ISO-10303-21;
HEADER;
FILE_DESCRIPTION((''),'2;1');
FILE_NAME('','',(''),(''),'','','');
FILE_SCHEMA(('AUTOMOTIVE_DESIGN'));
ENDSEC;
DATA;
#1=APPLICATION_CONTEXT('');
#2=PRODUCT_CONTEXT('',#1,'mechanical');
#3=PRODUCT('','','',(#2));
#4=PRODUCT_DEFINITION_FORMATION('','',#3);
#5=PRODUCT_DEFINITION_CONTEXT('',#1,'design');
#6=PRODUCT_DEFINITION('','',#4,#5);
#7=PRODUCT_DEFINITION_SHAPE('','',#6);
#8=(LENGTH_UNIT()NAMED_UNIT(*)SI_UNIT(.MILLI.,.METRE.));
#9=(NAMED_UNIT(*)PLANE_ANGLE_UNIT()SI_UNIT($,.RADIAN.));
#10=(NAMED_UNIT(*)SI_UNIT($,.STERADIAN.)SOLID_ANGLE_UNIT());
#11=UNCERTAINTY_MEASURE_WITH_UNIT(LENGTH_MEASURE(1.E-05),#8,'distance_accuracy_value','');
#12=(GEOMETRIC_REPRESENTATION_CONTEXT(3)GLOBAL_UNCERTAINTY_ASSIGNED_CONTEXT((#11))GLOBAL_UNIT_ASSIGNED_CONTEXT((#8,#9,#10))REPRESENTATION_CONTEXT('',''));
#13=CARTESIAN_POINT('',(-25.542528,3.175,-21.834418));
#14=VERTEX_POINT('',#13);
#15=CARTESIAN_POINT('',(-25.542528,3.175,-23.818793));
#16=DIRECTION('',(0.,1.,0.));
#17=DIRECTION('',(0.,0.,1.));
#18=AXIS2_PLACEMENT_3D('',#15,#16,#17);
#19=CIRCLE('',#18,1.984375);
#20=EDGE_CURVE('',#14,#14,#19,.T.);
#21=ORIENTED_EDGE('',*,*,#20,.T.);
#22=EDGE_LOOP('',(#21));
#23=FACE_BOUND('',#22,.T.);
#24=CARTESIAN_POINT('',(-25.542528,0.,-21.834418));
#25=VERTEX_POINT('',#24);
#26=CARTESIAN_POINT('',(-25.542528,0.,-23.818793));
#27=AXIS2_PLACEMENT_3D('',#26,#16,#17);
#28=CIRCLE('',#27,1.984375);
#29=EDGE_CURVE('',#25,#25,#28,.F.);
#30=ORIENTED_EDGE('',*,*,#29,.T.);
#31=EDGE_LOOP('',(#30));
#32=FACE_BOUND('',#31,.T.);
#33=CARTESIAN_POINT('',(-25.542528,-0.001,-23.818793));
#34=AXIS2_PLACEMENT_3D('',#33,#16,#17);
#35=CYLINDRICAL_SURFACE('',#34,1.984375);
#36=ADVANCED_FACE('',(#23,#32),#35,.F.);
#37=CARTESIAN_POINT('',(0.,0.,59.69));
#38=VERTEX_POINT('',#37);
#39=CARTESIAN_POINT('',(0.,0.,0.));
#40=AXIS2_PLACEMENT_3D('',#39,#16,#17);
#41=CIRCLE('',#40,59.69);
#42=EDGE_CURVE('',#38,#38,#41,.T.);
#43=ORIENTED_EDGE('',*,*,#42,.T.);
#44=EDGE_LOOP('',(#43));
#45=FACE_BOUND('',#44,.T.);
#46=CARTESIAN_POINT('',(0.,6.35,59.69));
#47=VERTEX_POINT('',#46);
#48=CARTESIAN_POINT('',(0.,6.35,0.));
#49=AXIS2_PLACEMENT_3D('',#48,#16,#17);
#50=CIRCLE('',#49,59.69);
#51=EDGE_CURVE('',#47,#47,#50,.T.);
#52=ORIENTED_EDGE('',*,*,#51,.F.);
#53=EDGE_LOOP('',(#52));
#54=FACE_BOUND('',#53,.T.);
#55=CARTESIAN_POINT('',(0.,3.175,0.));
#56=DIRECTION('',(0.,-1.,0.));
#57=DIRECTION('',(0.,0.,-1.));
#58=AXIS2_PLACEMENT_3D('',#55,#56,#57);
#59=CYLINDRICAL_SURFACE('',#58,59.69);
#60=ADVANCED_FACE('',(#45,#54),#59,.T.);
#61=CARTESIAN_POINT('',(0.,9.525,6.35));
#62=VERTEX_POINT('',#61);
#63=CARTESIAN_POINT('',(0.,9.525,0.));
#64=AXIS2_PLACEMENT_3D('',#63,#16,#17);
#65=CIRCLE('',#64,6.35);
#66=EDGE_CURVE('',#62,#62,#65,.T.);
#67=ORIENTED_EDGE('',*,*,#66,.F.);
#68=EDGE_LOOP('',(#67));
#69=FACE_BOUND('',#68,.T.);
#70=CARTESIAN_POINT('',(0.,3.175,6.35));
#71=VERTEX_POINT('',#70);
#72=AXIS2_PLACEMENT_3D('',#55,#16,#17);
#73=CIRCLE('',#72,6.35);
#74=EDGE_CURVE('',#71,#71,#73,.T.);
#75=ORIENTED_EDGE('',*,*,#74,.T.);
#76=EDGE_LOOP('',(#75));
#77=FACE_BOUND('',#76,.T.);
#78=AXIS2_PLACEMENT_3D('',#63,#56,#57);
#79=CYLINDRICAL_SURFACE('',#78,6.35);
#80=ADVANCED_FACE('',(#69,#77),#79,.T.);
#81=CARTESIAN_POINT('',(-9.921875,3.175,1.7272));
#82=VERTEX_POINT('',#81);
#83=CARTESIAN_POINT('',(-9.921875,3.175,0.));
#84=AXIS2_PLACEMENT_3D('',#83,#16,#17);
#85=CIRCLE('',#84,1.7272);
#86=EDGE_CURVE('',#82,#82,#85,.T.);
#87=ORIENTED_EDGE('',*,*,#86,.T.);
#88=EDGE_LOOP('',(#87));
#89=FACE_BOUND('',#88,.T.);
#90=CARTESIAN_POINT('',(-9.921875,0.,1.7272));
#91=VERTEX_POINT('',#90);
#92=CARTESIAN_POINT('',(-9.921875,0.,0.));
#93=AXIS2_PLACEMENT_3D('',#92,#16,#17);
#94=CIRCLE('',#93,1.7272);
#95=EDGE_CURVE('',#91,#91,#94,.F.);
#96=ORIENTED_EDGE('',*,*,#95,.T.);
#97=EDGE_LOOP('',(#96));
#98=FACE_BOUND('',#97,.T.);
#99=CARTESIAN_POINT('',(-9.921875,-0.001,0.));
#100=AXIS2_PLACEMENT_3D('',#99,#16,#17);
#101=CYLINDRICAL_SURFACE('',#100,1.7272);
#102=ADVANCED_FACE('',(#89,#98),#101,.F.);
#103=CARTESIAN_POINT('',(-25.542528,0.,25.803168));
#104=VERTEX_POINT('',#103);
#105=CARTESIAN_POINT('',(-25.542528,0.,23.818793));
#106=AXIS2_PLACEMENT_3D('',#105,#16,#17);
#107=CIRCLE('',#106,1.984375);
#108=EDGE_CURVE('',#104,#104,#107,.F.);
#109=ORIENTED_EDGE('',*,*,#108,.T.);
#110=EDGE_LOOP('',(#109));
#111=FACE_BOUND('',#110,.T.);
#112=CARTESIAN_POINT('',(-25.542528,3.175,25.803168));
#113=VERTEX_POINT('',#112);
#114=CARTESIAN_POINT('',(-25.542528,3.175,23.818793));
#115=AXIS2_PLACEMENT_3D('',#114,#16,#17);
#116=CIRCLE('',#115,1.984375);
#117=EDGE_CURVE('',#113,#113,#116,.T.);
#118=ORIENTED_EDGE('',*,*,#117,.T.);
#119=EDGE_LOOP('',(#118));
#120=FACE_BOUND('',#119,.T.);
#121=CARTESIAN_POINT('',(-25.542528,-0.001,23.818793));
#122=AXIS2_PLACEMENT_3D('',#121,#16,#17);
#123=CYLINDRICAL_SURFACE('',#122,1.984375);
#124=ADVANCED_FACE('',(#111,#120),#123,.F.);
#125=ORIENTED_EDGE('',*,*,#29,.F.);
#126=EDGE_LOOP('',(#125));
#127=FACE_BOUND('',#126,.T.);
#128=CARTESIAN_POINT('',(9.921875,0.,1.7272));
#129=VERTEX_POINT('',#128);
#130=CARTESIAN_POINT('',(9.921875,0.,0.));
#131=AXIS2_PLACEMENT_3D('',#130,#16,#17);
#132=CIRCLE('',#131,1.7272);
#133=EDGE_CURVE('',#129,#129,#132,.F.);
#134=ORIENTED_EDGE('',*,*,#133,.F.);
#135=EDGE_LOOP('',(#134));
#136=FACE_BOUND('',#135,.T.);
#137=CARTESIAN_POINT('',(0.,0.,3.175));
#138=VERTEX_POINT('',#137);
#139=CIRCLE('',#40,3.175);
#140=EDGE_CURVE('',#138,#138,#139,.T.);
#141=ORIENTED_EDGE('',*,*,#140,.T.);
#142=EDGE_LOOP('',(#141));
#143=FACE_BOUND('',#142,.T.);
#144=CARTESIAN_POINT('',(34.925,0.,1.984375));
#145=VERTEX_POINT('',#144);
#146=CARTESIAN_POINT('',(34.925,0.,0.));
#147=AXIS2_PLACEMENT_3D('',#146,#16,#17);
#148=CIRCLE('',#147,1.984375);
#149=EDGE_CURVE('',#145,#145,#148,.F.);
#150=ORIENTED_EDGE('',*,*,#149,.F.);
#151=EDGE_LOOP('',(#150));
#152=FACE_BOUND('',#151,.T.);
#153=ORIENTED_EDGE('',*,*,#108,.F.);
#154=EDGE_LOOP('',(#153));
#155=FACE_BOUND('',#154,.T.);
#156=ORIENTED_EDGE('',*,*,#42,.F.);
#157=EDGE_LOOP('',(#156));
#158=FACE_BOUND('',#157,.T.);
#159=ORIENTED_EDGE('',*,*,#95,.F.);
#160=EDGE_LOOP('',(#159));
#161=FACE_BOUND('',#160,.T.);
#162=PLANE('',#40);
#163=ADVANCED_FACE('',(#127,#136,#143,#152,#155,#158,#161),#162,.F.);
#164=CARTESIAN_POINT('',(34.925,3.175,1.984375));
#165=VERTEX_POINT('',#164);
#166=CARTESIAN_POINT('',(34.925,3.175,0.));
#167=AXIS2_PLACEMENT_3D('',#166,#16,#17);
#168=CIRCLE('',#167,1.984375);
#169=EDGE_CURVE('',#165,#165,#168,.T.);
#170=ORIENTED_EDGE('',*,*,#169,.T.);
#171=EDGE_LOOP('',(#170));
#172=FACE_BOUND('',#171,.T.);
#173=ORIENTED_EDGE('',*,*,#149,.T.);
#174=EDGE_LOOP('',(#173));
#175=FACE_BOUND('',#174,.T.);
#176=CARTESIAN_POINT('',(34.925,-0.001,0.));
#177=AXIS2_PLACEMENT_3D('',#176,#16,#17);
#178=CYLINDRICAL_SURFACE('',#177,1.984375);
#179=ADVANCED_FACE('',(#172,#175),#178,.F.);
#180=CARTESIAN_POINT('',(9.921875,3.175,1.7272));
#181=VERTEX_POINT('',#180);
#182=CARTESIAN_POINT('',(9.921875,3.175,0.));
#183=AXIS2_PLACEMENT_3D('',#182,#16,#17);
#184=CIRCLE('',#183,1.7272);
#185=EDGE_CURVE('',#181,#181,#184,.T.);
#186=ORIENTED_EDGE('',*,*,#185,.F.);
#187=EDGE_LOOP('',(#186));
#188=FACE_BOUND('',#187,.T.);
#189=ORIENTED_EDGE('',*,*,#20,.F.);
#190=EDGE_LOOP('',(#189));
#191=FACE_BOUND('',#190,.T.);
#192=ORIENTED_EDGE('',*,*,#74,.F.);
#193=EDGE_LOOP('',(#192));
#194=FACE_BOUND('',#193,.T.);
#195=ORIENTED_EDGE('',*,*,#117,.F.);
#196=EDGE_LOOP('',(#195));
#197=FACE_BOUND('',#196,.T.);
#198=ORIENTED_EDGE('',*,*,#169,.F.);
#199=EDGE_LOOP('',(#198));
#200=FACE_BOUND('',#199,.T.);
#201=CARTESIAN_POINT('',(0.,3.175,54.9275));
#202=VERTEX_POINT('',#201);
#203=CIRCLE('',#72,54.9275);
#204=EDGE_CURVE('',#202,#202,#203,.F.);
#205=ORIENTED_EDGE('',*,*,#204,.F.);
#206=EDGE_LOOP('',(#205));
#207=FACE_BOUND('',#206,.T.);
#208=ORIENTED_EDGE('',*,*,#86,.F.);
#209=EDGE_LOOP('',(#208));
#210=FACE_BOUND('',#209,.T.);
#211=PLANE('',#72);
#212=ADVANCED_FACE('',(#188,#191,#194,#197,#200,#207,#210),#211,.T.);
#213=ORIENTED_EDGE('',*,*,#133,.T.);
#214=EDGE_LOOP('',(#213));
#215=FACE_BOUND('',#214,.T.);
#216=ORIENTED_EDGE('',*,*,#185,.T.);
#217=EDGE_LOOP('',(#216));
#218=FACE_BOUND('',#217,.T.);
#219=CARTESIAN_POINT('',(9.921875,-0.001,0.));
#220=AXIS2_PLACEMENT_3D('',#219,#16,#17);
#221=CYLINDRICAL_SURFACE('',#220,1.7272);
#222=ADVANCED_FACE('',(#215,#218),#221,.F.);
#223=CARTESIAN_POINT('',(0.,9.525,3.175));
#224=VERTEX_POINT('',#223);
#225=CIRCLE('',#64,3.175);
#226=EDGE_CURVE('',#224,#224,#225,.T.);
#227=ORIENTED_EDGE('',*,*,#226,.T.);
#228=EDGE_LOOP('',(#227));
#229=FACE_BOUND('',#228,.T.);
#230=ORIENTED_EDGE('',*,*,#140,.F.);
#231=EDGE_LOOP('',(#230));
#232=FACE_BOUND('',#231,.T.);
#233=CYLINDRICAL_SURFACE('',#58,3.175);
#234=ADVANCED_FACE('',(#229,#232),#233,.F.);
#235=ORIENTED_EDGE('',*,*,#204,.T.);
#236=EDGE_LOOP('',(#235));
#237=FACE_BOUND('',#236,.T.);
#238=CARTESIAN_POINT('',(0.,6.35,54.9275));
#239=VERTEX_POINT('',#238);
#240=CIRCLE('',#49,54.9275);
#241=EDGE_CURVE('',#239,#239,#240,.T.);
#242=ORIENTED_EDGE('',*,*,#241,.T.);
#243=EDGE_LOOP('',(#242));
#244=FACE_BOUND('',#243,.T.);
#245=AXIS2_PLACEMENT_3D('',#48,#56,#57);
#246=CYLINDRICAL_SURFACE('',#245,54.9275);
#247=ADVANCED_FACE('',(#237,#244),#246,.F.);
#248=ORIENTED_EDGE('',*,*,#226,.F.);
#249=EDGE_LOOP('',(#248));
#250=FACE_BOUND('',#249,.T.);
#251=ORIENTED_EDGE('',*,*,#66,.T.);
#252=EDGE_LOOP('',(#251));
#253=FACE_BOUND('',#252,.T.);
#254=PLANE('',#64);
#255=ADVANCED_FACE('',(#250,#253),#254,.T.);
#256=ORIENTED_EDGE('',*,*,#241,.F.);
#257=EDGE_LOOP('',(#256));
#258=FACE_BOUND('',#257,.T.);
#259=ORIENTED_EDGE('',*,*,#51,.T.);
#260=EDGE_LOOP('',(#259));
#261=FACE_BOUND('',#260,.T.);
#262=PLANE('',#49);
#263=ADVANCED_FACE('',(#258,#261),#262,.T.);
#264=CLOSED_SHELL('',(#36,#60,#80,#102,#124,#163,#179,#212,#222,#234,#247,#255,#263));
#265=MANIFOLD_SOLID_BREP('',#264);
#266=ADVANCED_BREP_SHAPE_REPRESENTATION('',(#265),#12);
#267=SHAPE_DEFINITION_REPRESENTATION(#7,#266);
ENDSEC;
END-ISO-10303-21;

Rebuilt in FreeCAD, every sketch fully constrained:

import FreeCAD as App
import Part
import Sketcher
from FreeCAD import Vector
Q = App.Units.Quantity

doc = App.newDocument("Part")
body = doc.addObject("PartDesign::Body", "Body")

# Sketch on XZ plane
sketch1 = body.newObject("Sketcher::SketchObject", "Sketch")
sketch1.AttachmentSupport = (doc.getObject("XZ_Plane"), [""])
sketch1.MapMode = "FlatFace"
sketch1.addGeometry([
    Part.Circle(Vector(0, 0, 0), Vector(0, 0, 1), 59.7),
    Part.Circle(Vector(0, 0, 0), Vector(0, 0, 1), 3.2),
], False)
sketch1.addConstraint([
    Sketcher.Constraint("Coincident", 0, 3, -1, 1),
    Sketcher.Constraint("Coincident", 1, 3, -1, 1),
    Sketcher.Constraint("Diameter", 0, Q("4.7 in")),
    Sketcher.Constraint("Diameter", 1, Q("0.25 in")),
])
pad1 = body.newObject("PartDesign::Pad", "Pad")
pad1.Profile = sketch1
pad1.Length = Q("0.125 in")
pad1.Reversed = True

# Sketch on XZ plane
sketch2 = body.newObject("Sketcher::SketchObject", "Sketch001")
sketch2.AttachmentSupport = (doc.getObject("XZ_Plane"), [""])
sketch2.MapMode = "FlatFace"
sketch2.AttachmentOffset = App.Placement(Vector(0, 0, -0.125 * 25.4), App.Rotation())
sketch2.addGeometry([
    Part.Circle(Vector(0, 0, 0), Vector(0, 0, 1), 60),
    Part.Circle(Vector(0, 0, 0), Vector(0, 0, 1), 55),
], False)
sketch2.addConstraint([
    Sketcher.Constraint("Coincident", 0, 3, -1, 1),
    Sketcher.Constraint("Coincident", 1, 3, -1, 1),
    Sketcher.Constraint("Diameter", 0, Q("4.7 in")),
    Sketcher.Constraint("Diameter", 1, Q("4.325 in")),
])
pad2 = body.newObject("PartDesign::Pad", "Pad001")
pad2.Profile = sketch2
pad2.Length = Q("0.125 in")
pad2.Reversed = True

# Sketch on XZ plane
sketch3 = body.newObject("Sketcher::SketchObject", "Sketch002")
sketch3.AttachmentSupport = (doc.getObject("XZ_Plane"), [""])
sketch3.MapMode = "FlatFace"
sketch3.AttachmentOffset = App.Placement(Vector(0, 0, -0.125 * 25.4), App.Rotation())
sketch3.addGeometry(Part.Circle(Vector(-25.5, -23.8, 0), Vector(0, 0, 1), 2), False)
sketch3.addConstraint([
    Sketcher.Constraint("Diameter", 0, Q("0.15625 in")),
    Sketcher.Constraint("DistanceX", 0, 3, -1, 1, Q("25.542528 mm")),
    Sketcher.Constraint("DistanceY", 0, 3, -1, 1, Q("23.818793 mm")),
])
pocket1 = body.newObject("PartDesign::Pocket", "Pocket")
pocket1.Profile = sketch3
pocket1.Type = "UpToFirst"
pocket1.Reversed = True

# Sketch on XZ plane
sketch4 = body.newObject("Sketcher::SketchObject", "Sketch003")
sketch4.AttachmentSupport = (doc.getObject("XZ_Plane"), [""])
sketch4.MapMode = "FlatFace"
sketch4.AttachmentOffset = App.Placement(Vector(0, 0, -0.125 * 25.4), App.Rotation())
sketch4.addGeometry(Part.Circle(Vector(-25.5, 23.8, 0), Vector(0, 0, 1), 2), False)
sketch4.addConstraint([
    Sketcher.Constraint("Diameter", 0, Q("0.15625 in")),
    Sketcher.Constraint("DistanceX", 0, 3, -1, 1, Q("25.542528 mm")),
    Sketcher.Constraint("DistanceY", -1, 1, 0, 3, Q("23.818793 mm")),
])
pocket2 = body.newObject("PartDesign::Pocket", "Pocket001")
pocket2.Profile = sketch4
pocket2.Type = "UpToFirst"
pocket2.Reversed = True

# Sketch on XZ plane
sketch5 = body.newObject("Sketcher::SketchObject", "Sketch004")
sketch5.AttachmentSupport = (doc.getObject("XZ_Plane"), [""])
sketch5.MapMode = "FlatFace"
sketch5.AttachmentOffset = App.Placement(Vector(0, 0, -0.125 * 25.4), App.Rotation())
sketch5.addGeometry(Part.Circle(Vector(34.9, 0, 0), Vector(0, 0, 1), 2), False)
sketch5.addConstraint([
    Sketcher.Constraint("PointOnObject", 0, 3, -1),
    Sketcher.Constraint("Diameter", 0, Q("0.15625 in")),
    Sketcher.Constraint("DistanceX", -1, 1, 0, 3, Q("1.375 in")),
])
pocket3 = body.newObject("PartDesign::Pocket", "Pocket002")
pocket3.Profile = sketch5
pocket3.Type = "UpToFirst"
pocket3.Reversed = True

# Sketch on XZ plane
sketch6 = body.newObject("Sketcher::SketchObject", "Sketch005")
sketch6.AttachmentSupport = (doc.getObject("XZ_Plane"), [""])
sketch6.MapMode = "FlatFace"
sketch6.AttachmentOffset = App.Placement(Vector(0, 0, -0.125 * 25.4), App.Rotation())
sketch6.addGeometry(Part.Circle(Vector(9.9, 0, 0), Vector(0, 0, 1), 1.7), False)
sketch6.addConstraint([
    Sketcher.Constraint("PointOnObject", 0, 3, -1),
    Sketcher.Constraint("Diameter", 0, Q("0.136 in")),
    Sketcher.Constraint("DistanceX", -1, 1, 0, 3, Q("0.390625 in")),
])
pocket4 = body.newObject("PartDesign::Pocket", "Pocket003")
pocket4.Profile = sketch6
pocket4.Type = "UpToFirst"
pocket4.Reversed = True

# Sketch on XZ plane
sketch7 = body.newObject("Sketcher::SketchObject", "Sketch006")
sketch7.AttachmentSupport = (doc.getObject("XZ_Plane"), [""])
sketch7.MapMode = "FlatFace"
sketch7.AttachmentOffset = App.Placement(Vector(0, 0, -0.125 * 25.4), App.Rotation())
sketch7.addGeometry(Part.Circle(Vector(-9.9, 0, 0), Vector(0, 0, 1), 1.7), False)
sketch7.addConstraint([
    Sketcher.Constraint("PointOnObject", 0, 3, -1),
    Sketcher.Constraint("Diameter", 0, Q("0.136 in")),
    Sketcher.Constraint("DistanceX", 0, 3, -1, 1, Q("0.390625 in")),
])
pocket5 = body.newObject("PartDesign::Pocket", "Pocket004")
pocket5.Profile = sketch7
pocket5.Type = "UpToFirst"
pocket5.Reversed = True

# Sketch on XZ plane
sketch8 = body.newObject("Sketcher::SketchObject", "Sketch007")
sketch8.AttachmentSupport = (doc.getObject("XZ_Plane"), [""])
sketch8.MapMode = "FlatFace"
sketch8.AttachmentOffset = App.Placement(Vector(0, 0, -0.125 * 25.4), App.Rotation())
sketch8.addGeometry([
    Part.Circle(Vector(0, 0, 0), Vector(0, 0, 1), 6.3),
    Part.Circle(Vector(0, 0, 0), Vector(0, 0, 1), 3.2),
], False)
sketch8.addConstraint([
    Sketcher.Constraint("Coincident", 0, 3, -1, 1),
    Sketcher.Constraint("Coincident", 1, 3, -1, 1),
    Sketcher.Constraint("Diameter", 0, Q("0.5 in")),
    Sketcher.Constraint("Diameter", 1, Q("0.25 in")),
])
pad3 = body.newObject("PartDesign::Pad", "Pad002")
pad3.Profile = sketch8
pad3.Length = Q("0.25 in")
pad3.Reversed = True

doc.recompute()
